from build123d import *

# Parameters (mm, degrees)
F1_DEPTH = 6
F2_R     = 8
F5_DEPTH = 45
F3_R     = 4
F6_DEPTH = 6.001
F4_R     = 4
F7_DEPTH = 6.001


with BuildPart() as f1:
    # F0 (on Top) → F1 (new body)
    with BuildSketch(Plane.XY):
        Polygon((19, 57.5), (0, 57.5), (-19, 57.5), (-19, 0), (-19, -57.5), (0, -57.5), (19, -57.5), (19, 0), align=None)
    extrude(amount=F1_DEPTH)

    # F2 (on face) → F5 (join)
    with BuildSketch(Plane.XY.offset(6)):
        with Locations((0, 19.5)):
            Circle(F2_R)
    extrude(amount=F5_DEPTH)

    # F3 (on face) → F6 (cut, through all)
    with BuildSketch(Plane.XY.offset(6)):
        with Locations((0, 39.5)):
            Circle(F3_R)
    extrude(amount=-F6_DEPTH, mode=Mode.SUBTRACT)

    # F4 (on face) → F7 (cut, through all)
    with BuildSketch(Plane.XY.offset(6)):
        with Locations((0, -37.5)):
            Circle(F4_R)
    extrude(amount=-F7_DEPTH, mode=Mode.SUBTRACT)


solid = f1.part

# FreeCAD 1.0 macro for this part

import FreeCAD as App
import Part
import Sketcher
from FreeCAD import Vector
Q = App.Units.Quantity


def add_polygon(sketch, points):
    """Adds a closed chain of lines whose ends are joined by coincident constraints."""
    first, n = sketch.GeometryCount, len(points)
    for a, b in zip(points, points[1:] + points[:1]):
        sketch.addGeometry(Part.LineSegment(App.Vector(*a, 0), App.Vector(*b, 0)), False)
    for i in range(n):
        sketch.addConstraint(Sketcher.Constraint("Coincident", first + i, 2, first + (i + 1) % n, 1))

doc = App.newDocument("Part")
body = doc.addObject("PartDesign::Body", "Body")

# Sketch on XY plane
sketch1 = doc.addObject("Sketcher::SketchObject", "Sketch")
body.addObject(sketch1)
sketch1.AttachmentSupport = (doc.XY_Plane, [""])
sketch1.MapMode = "FlatFace"
add_polygon(sketch1, [(19, 58), (-19, 58), (-19, -58), (19, -58)])  # lines 0-3
sketch1.addConstraint([
    Sketcher.Constraint("Horizontal", 0),
    Sketcher.Constraint("Vertical", 1),
    Sketcher.Constraint("Horizontal", 2),
    Sketcher.Constraint("Vertical", 3),
    Sketcher.Constraint("Symmetric", 0, 2, 2, 2, -1, 1),
    Sketcher.Constraint("DistanceX", 0, 2, 0, 1, Q("38 mm")),
    Sketcher.Constraint("DistanceY", 1, 2, 1, 1, Q("115 mm")),
])
pad1 = doc.addObject("PartDesign::Pad", "Pad")
body.addObject(pad1)
pad1.Profile = sketch1
pad1.Length = 6

# Sketch on XY plane
sketch2 = doc.addObject("Sketcher::SketchObject", "Sketch001")
body.addObject(sketch2)
sketch2.AttachmentSupport = (doc.XY_Plane, [""])
sketch2.MapMode = "FlatFace"
sketch2.AttachmentOffset = App.Placement(Vector(0, 0, 6), App.Rotation())
sketch2.addGeometry(Part.Circle(Vector(0, 20, 0), Vector(0, 0, 1), 8), False)
sketch2.addConstraint([
    Sketcher.Constraint("PointOnObject", 0, 3, -2),
    Sketcher.Constraint("Diameter", 0, Q("16 mm")),
    Sketcher.Constraint("DistanceY", -1, 1, 0, 3, Q("19.5 mm")),
])
pad2 = doc.addObject("PartDesign::Pad", "Pad001")
body.addObject(pad2)
pad2.Profile = sketch2
pad2.Length = 45

# Sketch on XY plane
sketch3 = doc.addObject("Sketcher::SketchObject", "Sketch002")
body.addObject(sketch3)
sketch3.AttachmentSupport = (doc.XY_Plane, [""])
sketch3.MapMode = "FlatFace"
sketch3.AttachmentOffset = App.Placement(Vector(0, 0, 6), App.Rotation())
sketch3.addGeometry(Part.Circle(Vector(0, 39.5, 0), Vector(0, 0, 1), 4), False)
sketch3.addConstraint([
    Sketcher.Constraint("PointOnObject", 0, 3, -2),
    Sketcher.Constraint("Diameter", 0, Q("8 mm")),
    Sketcher.Constraint("DistanceY", -1, 1, 0, 3, Q("39.5 mm")),
])
pocket1 = doc.addObject("PartDesign::Pocket", "Pocket")
body.addObject(pocket1)
pocket1.Profile = sketch3
pocket1.Type = "ThroughAll"

# Sketch on XY plane
sketch4 = doc.addObject("Sketcher::SketchObject", "Sketch003")
body.addObject(sketch4)
sketch4.AttachmentSupport = (doc.XY_Plane, [""])
sketch4.MapMode = "FlatFace"
sketch4.AttachmentOffset = App.Placement(Vector(0, 0, 6), App.Rotation())
sketch4.addGeometry(Part.Circle(Vector(0, -37.5, 0), Vector(0, 0, 1), 4), False)
sketch4.addConstraint([
    Sketcher.Constraint("PointOnObject", 0, 3, -2),
    Sketcher.Constraint("Diameter", 0, Q("8 mm")),
    Sketcher.Constraint("DistanceY", 0, 3, -1, 1, Q("37.5 mm")),
])
pocket2 = doc.addObject("PartDesign::Pocket", "Pocket001")
body.addObject(pocket2)
pocket2.Profile = sketch4
pocket2.Type = "ThroughAll"

doc.recompute()
